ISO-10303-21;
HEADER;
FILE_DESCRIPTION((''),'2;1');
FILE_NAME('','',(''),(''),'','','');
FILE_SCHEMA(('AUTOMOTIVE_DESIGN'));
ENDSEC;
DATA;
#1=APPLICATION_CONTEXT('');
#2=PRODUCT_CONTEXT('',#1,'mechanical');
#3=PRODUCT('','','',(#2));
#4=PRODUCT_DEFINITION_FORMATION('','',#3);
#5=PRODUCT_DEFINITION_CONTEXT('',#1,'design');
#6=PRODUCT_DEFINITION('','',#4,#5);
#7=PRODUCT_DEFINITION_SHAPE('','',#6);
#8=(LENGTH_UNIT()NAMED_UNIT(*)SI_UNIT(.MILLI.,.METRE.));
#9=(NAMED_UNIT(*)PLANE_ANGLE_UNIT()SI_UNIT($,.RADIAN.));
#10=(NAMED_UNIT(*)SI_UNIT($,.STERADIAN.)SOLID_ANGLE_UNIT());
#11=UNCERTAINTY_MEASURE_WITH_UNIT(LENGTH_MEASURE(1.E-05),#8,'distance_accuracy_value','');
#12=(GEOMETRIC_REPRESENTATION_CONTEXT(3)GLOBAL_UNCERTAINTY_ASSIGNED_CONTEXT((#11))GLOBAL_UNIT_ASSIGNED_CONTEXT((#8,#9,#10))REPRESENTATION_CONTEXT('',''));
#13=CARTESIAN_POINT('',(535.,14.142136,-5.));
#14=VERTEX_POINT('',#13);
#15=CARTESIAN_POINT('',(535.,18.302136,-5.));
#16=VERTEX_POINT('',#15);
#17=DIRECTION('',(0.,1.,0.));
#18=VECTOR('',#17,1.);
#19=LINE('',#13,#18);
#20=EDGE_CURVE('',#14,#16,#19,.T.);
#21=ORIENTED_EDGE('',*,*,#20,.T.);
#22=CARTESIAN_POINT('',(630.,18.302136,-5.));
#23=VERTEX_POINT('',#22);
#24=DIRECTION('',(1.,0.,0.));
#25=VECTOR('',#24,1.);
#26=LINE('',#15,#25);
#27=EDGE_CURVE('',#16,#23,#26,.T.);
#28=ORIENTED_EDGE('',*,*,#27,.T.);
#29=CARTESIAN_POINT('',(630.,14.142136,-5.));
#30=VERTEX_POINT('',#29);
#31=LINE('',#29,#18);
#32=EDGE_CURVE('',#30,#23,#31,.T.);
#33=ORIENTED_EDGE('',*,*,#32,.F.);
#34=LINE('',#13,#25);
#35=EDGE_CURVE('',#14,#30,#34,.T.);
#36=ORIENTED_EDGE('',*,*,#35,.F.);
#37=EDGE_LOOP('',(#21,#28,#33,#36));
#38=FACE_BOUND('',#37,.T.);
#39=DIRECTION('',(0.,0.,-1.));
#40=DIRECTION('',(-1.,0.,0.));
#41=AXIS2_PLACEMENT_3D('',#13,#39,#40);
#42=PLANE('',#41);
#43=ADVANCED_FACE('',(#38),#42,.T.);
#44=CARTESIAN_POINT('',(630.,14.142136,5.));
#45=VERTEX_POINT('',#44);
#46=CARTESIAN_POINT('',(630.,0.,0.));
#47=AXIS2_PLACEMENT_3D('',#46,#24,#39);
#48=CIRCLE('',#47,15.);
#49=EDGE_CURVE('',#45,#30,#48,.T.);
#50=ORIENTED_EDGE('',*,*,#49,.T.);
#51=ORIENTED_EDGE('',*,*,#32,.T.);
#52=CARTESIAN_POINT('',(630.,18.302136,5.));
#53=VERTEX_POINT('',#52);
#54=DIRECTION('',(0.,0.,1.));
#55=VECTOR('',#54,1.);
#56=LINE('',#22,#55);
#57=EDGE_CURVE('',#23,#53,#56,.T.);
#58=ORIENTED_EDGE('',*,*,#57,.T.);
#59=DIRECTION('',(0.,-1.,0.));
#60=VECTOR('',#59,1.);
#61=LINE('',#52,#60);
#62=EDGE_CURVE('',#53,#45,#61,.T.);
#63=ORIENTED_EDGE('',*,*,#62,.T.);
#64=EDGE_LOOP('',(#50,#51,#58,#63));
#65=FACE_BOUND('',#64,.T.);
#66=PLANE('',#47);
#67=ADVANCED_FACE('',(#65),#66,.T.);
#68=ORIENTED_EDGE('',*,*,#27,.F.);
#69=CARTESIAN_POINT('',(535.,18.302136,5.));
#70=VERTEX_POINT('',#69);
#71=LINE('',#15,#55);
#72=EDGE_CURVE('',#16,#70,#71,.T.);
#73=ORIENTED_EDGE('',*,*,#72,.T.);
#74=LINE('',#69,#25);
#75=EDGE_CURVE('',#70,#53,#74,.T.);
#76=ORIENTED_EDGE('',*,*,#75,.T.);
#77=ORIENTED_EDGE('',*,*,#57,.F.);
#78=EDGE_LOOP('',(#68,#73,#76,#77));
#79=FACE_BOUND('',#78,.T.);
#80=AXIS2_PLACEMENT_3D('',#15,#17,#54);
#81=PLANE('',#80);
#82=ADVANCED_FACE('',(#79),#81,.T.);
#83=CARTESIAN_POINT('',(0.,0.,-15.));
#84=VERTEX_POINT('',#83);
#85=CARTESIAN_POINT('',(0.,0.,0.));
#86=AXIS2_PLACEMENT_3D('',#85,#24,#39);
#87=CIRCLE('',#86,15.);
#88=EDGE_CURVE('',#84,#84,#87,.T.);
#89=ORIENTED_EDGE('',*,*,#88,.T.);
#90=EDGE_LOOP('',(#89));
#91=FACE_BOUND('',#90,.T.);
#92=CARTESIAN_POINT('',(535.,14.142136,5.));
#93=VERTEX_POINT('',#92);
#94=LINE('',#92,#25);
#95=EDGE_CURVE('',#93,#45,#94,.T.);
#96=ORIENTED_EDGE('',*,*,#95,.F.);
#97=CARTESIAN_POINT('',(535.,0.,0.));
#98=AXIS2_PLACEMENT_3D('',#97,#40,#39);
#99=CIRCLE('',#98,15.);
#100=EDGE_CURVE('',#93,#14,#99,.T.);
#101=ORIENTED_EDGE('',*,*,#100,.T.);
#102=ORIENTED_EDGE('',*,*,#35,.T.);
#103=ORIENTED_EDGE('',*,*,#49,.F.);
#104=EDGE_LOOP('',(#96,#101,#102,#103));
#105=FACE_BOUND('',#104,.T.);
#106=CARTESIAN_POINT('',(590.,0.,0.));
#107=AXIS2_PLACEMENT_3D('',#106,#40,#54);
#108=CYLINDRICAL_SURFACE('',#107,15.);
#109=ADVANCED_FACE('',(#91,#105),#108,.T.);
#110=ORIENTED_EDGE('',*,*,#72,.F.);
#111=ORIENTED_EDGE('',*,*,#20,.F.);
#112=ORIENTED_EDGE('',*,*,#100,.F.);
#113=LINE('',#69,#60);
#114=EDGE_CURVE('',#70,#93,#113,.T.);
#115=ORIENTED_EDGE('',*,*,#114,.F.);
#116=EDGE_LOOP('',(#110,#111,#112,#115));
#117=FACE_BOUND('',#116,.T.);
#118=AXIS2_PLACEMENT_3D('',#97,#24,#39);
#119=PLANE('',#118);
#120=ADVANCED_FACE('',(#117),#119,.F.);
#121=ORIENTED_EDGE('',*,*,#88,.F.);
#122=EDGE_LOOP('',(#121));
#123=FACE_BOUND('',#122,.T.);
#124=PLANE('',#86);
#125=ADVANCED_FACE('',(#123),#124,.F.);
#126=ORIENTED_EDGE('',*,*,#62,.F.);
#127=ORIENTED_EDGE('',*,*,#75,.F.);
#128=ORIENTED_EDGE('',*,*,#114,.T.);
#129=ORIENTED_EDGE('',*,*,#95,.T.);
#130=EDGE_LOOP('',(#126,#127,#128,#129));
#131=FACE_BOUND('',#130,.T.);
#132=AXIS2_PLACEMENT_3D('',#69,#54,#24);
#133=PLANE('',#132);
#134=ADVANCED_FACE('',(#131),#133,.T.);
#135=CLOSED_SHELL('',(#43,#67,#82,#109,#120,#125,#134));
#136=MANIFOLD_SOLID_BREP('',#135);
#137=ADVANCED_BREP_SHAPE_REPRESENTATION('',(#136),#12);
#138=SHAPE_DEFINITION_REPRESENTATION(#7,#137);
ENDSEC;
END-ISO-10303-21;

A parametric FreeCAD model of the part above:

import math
import FreeCAD as App
import Part
import Sketcher

doc = App.newDocument("Part")
body = doc.addObject("PartDesign::Body", "Body")

# Sketch on YZ plane
sketch1 = body.newObject("Sketcher::SketchObject", "Sketch")
sketch1.AttachmentSupport = (doc.getObject("YZ_Plane"), [""])
sketch1.MapMode = "FlatFace"
sketch1.addGeometry(Part.Circle(App.Vector(0, 0, 0), App.Vector(0, 0, 1), 15), False)
sketch1.addConstraint([
    Sketcher.Constraint("Coincident", 0, 3, -1, 1),
    Sketcher.Constraint("Diameter", 0, 30.0),
])
pad1 = body.newObject("PartDesign::Pad", "Pad")
pad1.Profile = sketch1
pad1.Length = 590

# Sketch on YZ plane
sketch2 = body.newObject("Sketcher::SketchObject", "Sketch001")
sketch2.AttachmentSupport = (doc.getObject("YZ_Plane"), [""])
sketch2.MapMode = "FlatFace"
sketch2.AttachmentOffset = App.Placement(App.Vector(0, 0, 535), App.Rotation())
sketch2.addGeometry([
    Part.LineSegment(App.Vector(14.142136, -5, 0), App.Vector(18.302136, -5, 0)),
    Part.LineSegment(App.Vector(18.302136, -5, 0), App.Vector(18.302136, 5, 0)),
    Part.LineSegment(App.Vector(18.302136, 5, 0), App.Vector(14.142136, 5, 0)),
    Part.ArcOfCircle(Part.Circle(App.Vector(0, 0, 0), App.Vector(0, 0, 1), 15), math.radians(-19.471221), math.radians(19.471221)),
], False)
sketch2.addConstraint([
    Sketcher.Constraint("Coincident", 0, 2, 1, 1),
    Sketcher.Constraint("Coincident", 1, 2, 2, 1),
    Sketcher.Constraint("Coincident", 2, 2, 3, 2),
    Sketcher.Constraint("Coincident", 3, 1, 0, 1),
    Sketcher.Constraint("Horizontal", 0),
    Sketcher.Constraint("Vertical", 1),
    Sketcher.Constraint("Horizontal", 2),
    Sketcher.Constraint("Coincident", 3, 3, -1, 1),
    Sketcher.Constraint("Vertical", 2, 2, 3, 1),
    Sketcher.Constraint("Radius", 3, 15.0),
    Sketcher.Constraint("DistanceY", 1, 1, 1, 2, 10.0),
    Sketcher.Constraint("DistanceX", 0, 1, 0, 2, 4.16),
])
pad2 = body.newObject("PartDesign::Pad", "Pad001")
pad2.Profile = sketch2
pad2.Length = 55

# Sketch on YZ plane
sketch3 = body.newObject("Sketcher::SketchObject", "Sketch002")
sketch3.AttachmentSupport = (doc.getObject("YZ_Plane"), [""])
sketch3.MapMode = "FlatFace"
sketch3.AttachmentOffset = App.Placement(App.Vector(0, 0, 590), App.Rotation())
sketch3.addGeometry([
    Part.LineSegment(App.Vector(18.302136, 5, 0), App.Vector(14.142136, 5, 0)),
    Part.ArcOfCircle(Part.Circle(App.Vector(0, 0, 0), App.Vector(0, 0, 1), 15), math.radians(19.471221), math.radians(340.528779)),
    Part.LineSegment(App.Vector(14.142136, -5, 0), App.Vector(18.302136, -5, 0)),
    Part.LineSegment(App.Vector(18.302136, -5, 0), App.Vector(18.302136, 5, 0)),
], False)
sketch3.addConstraint([
    Sketcher.Constraint("Coincident", 0, 2, 1, 1),
    Sketcher.Constraint("Coincident", 1, 2, 2, 1),
    Sketcher.Constraint("Coincident", 2, 2, 3, 1),
    Sketcher.Constraint("Coincident", 3, 2, 0, 1),
    Sketcher.Constraint("Horizontal", 0),
    Sketcher.Constraint("Horizontal", 2),
    Sketcher.Constraint("Vertical", 3),
    Sketcher.Constraint("Coincident", 1, 3, -1, 1),
    Sketcher.Constraint("Vertical", 0, 2, 1, 2),
    Sketcher.Constraint("Radius", 1, 15.0),
    Sketcher.Constraint("DistanceY", 3, 1, 3, 2, 10.0),
    Sketcher.Constraint("DistanceX", 0, 2, 0, 1, 4.16),
])
pad3 = body.newObject("PartDesign::Pad", "Pad002")
pad3.Profile = sketch3
pad3.Length = 40

doc.recompute()
